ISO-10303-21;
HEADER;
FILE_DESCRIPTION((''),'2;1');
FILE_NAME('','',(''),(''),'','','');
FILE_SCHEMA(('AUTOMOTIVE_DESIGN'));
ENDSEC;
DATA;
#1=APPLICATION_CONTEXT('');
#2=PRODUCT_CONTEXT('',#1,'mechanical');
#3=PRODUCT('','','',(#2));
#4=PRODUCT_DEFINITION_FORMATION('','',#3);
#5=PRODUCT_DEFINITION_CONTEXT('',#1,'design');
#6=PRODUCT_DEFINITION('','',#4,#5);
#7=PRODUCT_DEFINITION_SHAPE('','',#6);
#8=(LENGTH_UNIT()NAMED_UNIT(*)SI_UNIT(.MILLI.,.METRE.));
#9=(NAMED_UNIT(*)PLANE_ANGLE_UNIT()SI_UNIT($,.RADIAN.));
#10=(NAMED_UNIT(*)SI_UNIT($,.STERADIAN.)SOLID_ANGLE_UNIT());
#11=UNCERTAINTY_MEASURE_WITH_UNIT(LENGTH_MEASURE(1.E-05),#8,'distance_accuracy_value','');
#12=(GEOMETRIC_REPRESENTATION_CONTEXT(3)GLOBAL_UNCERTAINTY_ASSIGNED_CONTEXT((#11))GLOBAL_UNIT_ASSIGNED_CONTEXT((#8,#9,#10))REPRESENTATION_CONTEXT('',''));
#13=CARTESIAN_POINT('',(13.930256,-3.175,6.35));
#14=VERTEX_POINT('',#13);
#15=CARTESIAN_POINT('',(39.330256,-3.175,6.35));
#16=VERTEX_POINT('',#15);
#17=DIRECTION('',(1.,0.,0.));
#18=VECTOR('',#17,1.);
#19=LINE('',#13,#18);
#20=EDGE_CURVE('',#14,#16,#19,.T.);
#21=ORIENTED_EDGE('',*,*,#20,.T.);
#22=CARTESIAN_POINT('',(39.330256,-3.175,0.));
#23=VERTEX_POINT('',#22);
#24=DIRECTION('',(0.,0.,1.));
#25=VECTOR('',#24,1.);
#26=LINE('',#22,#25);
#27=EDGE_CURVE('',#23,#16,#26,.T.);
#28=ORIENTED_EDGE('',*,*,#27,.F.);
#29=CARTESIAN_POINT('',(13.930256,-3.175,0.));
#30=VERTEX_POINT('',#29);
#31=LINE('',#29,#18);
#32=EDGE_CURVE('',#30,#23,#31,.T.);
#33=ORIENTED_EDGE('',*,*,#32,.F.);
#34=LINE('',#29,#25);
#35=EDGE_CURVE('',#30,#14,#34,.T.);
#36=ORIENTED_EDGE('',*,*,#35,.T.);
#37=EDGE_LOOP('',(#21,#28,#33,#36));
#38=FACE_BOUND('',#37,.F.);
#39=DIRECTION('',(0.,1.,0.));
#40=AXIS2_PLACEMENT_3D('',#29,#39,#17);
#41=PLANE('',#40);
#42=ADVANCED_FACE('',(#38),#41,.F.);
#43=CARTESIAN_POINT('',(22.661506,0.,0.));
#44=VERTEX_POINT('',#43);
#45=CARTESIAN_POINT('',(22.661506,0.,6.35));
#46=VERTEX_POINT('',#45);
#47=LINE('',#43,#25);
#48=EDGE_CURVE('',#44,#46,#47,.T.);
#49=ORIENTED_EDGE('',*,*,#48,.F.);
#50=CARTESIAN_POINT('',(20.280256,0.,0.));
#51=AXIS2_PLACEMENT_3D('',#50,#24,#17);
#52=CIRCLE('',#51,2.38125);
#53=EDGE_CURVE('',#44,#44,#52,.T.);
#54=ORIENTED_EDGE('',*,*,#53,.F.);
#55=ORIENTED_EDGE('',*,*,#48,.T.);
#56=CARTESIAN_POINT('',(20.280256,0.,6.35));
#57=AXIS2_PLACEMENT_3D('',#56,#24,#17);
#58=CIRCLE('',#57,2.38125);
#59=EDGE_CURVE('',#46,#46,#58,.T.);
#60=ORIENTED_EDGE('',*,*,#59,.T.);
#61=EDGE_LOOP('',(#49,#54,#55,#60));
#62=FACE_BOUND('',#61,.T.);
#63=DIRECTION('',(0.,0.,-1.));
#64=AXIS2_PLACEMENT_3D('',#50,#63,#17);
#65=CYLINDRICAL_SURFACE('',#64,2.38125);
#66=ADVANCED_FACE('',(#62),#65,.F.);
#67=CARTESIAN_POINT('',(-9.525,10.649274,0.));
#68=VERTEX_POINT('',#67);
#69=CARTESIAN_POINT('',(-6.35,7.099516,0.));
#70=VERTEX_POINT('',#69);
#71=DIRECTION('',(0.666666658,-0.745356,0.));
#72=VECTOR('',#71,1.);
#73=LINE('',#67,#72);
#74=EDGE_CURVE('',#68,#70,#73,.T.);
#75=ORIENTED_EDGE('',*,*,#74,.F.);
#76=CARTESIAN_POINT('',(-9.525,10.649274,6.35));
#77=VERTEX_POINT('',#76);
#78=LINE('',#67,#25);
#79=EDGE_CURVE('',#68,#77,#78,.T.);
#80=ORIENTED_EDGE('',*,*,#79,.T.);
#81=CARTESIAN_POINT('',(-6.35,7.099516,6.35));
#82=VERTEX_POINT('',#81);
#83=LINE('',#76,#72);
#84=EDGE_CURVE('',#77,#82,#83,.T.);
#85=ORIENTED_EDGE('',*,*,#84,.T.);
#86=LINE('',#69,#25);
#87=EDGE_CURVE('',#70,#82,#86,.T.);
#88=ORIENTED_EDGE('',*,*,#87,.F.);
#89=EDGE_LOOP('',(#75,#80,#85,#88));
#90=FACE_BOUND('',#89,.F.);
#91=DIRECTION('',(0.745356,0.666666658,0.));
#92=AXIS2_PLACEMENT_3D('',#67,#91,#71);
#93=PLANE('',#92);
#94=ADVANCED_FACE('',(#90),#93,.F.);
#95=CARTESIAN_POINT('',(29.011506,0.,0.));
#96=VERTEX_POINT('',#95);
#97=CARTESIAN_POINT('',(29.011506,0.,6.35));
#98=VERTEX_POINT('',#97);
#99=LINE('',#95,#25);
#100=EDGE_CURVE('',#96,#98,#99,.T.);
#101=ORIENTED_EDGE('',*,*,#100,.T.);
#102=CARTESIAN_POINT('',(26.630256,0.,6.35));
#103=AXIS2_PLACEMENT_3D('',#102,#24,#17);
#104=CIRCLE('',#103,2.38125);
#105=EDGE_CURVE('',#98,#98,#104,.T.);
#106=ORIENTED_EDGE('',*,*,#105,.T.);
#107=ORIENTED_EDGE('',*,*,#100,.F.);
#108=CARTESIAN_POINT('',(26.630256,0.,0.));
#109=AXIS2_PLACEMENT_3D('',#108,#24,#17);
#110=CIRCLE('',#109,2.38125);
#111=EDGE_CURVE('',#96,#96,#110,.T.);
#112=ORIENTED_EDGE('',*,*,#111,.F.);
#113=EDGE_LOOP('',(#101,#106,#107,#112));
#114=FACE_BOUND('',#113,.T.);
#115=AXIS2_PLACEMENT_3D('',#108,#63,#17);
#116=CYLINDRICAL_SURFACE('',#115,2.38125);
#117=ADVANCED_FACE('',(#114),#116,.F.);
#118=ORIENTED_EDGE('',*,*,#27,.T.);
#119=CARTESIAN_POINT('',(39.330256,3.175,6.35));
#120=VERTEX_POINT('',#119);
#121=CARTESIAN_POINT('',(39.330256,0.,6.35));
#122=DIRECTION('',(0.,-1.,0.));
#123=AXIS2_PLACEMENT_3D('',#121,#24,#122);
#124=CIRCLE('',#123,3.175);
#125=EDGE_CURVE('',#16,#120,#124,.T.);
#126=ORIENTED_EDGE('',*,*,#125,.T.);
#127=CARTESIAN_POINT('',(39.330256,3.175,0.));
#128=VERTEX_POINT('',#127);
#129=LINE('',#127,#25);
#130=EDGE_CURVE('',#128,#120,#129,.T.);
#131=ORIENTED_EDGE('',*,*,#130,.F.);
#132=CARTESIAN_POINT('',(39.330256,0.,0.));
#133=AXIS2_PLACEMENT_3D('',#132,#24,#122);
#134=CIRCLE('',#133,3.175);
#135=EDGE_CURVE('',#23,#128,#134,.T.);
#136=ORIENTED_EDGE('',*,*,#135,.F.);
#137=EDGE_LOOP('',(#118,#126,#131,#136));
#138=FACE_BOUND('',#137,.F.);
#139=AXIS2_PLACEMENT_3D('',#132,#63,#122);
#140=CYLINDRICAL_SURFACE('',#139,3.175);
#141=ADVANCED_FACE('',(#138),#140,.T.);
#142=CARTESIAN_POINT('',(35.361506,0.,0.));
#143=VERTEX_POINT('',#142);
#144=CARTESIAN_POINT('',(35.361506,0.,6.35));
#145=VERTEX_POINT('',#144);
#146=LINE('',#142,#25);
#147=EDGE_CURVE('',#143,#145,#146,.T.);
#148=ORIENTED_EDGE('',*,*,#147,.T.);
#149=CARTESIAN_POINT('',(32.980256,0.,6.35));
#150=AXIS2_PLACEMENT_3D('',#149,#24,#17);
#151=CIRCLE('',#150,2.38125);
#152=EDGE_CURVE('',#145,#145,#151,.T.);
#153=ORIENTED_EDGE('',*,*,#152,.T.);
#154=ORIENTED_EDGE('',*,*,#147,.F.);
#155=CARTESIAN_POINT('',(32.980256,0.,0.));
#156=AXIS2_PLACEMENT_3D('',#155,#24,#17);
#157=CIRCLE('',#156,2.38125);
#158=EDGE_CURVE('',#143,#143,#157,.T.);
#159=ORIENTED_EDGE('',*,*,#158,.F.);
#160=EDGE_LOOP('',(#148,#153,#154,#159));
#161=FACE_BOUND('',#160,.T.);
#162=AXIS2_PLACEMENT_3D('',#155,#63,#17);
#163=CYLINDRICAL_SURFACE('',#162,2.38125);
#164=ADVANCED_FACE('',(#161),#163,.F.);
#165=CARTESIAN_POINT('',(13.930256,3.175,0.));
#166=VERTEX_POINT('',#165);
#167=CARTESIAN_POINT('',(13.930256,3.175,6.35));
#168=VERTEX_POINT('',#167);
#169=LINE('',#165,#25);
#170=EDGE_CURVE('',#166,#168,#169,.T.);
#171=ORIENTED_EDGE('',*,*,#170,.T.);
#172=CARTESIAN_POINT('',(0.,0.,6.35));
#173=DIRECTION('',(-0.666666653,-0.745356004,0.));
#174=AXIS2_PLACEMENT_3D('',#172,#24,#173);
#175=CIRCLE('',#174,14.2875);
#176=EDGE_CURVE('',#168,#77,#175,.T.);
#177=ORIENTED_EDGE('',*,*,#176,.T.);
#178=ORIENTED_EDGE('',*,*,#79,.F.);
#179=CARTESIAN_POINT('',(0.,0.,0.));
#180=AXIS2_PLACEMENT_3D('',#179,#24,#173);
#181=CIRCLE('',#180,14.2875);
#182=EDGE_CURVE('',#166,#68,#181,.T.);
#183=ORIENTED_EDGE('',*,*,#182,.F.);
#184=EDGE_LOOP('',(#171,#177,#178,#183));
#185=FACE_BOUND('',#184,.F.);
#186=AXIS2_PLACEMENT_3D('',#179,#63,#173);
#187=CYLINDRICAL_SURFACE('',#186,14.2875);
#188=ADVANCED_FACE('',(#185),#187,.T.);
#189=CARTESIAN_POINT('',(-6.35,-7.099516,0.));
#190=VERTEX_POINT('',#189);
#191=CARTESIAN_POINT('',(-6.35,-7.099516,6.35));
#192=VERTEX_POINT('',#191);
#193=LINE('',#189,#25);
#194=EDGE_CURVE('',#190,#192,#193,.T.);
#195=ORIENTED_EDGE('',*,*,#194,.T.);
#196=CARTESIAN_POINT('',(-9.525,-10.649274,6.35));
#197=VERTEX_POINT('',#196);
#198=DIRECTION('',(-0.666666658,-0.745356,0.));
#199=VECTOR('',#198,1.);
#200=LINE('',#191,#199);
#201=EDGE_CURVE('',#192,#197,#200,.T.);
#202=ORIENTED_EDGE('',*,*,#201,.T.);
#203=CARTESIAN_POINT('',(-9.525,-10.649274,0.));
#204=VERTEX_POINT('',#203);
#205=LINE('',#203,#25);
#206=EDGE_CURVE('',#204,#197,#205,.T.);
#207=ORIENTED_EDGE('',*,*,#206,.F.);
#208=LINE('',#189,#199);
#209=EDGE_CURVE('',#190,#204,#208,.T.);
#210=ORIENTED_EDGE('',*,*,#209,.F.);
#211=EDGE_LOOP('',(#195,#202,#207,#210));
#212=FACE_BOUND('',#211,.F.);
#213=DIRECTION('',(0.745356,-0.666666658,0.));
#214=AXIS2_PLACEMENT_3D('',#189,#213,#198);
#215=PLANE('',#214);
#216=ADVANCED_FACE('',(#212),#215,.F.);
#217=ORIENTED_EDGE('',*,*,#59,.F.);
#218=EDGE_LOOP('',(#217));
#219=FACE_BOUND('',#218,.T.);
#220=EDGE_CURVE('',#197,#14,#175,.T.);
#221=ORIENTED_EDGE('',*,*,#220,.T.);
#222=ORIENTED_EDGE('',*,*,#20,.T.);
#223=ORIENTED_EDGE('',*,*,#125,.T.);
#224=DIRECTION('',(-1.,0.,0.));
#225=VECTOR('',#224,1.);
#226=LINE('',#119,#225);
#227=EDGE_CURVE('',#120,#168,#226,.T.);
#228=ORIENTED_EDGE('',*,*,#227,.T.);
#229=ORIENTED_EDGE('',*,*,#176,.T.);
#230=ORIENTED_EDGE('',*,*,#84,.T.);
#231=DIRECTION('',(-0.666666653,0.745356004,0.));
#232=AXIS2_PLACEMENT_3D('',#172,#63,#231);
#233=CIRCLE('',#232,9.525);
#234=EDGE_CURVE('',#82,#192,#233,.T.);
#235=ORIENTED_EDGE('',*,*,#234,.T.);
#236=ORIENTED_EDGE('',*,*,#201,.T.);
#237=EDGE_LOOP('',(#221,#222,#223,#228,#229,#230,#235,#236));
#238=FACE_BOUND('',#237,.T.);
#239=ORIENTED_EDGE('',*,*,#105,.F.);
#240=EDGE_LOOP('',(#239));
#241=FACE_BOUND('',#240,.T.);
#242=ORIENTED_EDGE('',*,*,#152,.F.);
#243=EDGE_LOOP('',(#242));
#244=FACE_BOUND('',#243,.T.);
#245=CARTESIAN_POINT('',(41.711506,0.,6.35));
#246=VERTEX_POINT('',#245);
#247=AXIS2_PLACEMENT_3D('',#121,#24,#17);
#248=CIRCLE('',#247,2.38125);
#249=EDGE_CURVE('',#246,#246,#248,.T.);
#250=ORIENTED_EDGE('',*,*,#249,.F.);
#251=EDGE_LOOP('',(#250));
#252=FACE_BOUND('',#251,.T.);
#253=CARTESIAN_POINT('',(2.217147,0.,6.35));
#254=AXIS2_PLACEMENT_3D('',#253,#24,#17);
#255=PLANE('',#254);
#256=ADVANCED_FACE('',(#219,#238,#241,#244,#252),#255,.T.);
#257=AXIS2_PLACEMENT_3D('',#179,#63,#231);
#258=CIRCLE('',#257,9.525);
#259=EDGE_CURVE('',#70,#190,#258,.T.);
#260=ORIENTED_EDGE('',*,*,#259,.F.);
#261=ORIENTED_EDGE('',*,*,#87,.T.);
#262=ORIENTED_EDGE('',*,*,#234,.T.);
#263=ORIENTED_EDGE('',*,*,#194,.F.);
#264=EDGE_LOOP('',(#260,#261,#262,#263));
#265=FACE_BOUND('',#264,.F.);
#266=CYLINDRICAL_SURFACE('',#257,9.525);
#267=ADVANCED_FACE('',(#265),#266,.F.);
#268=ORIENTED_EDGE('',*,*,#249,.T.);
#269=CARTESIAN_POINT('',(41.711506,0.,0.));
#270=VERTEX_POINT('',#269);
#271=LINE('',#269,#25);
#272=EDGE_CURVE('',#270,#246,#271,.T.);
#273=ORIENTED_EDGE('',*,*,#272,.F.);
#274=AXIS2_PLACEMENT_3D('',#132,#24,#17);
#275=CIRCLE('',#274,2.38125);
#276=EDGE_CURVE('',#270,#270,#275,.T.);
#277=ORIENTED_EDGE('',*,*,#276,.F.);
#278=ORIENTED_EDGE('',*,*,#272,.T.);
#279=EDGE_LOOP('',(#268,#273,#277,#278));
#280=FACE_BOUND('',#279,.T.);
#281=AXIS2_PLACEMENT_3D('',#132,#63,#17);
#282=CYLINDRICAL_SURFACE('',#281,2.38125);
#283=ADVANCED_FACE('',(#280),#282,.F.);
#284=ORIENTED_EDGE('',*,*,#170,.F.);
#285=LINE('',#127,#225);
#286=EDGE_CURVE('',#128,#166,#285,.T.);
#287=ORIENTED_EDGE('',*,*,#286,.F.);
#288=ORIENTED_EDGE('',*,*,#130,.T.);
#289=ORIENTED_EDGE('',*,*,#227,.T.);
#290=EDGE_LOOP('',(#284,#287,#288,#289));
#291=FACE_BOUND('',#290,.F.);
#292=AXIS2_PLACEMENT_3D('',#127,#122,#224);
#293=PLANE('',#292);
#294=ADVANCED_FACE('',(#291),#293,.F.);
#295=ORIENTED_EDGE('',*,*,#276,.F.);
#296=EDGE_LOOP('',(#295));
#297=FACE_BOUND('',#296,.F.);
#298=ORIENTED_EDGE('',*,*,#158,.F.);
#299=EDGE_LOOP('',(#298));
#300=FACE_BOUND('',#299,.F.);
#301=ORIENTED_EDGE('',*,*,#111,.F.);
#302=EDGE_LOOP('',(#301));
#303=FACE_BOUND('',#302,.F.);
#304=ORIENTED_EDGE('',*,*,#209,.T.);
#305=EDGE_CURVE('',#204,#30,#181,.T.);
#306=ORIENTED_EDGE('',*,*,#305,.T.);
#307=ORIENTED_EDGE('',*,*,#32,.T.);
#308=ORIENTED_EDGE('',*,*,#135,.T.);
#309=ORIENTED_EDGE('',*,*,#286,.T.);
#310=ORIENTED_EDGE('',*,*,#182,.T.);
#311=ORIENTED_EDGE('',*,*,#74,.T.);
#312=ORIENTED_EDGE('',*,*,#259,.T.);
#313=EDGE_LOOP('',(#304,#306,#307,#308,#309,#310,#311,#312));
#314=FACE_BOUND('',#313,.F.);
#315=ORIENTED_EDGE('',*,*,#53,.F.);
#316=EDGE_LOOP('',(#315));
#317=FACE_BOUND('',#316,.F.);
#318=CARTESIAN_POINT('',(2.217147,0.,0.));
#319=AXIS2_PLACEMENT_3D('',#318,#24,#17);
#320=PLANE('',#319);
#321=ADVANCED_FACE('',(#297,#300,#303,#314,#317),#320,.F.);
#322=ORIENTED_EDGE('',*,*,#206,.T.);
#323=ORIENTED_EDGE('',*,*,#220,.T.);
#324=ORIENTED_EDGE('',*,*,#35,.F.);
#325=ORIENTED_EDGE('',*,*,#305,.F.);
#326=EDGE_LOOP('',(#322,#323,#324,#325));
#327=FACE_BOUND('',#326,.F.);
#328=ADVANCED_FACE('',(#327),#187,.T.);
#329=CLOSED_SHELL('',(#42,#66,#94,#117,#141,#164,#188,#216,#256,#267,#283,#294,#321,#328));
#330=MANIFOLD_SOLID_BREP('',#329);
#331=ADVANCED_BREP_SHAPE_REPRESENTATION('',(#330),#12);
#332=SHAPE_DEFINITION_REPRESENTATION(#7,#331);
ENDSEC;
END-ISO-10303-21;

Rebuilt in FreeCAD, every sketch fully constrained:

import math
import FreeCAD as App
import Part
import Sketcher

V = App.Vector
Q = App.Units.Quantity

doc = App.newDocument("Part")
body = doc.addObject("PartDesign::Body", "Body")

# Sketch on XY plane
sketch1 = body.newObject("Sketcher::SketchObject", "Sketch")
sketch1.AttachmentSupport = (doc.getObject("XY_Plane"), [""])
sketch1.MapMode = "FlatFace"
sketch1.addGeometry([
    Part.LineSegment(V(-9.5, 10.6, 0), V(-6.3, 7.1, 0)),
    Part.ArcOfCircle(Part.Circle(V(0, 0, 0), V(0, 0, 1), 9.5), math.radians(-132), math.radians(132)),
    Part.LineSegment(V(-6.3, -7.1, 0), V(-9.5, -10.6, 0)),
    Part.ArcOfCircle(Part.Circle(V(0, 0, 0), V(0, 0, 1), 14.3), math.radians(-132), math.radians(132)),
], False)
sketch1.addConstraint([
    Sketcher.Constraint("Coincident", 0, 2, 1, 2),
    Sketcher.Constraint("Coincident", 1, 1, 2, 1),
    Sketcher.Constraint("Coincident", 2, 2, 3, 1),
    Sketcher.Constraint("Coincident", 3, 2, 0, 1),
    Sketcher.Constraint("Coincident", 1, 3, -1, 1),
    Sketcher.Constraint("Coincident", 3, 3, -1, 1),
    Sketcher.Constraint("Vertical", 0, 2, 1, 1),
    Sketcher.Constraint("Vertical", 2, 2, 3, 2),
    Sketcher.Constraint("Radius", 1, Q("0.375 in")),
    Sketcher.Constraint("Radius", 3, Q("0.5625 in")),
    Sketcher.Constraint("DistanceX", 0, 2, -1, 1, Q("0.25 in")),
    Sketcher.Constraint("DistanceX", 2, 2, -1, 1, Q("0.375 in")),
])
pad1 = body.newObject("PartDesign::Pad", "Pad")
pad1.Profile = sketch1
pad1.Length = Q("0.25 in")

# Sketch on XY plane
sketch2 = body.newObject("Sketcher::SketchObject", "Sketch001")
sketch2.AttachmentSupport = (doc.getObject("XY_Plane"), [""])
sketch2.MapMode = "FlatFace"
sketch2.addGeometry([
    Part.LineSegment(V(39.3, 3.2, 0), V(13.9, 3.2, 0)),  # 0
    Part.ArcOfCircle(Part.Circle(V(0, 0, 0), V(0, 0, 1), 14.3), math.radians(-13), math.radians(13)),  # 1
    Part.LineSegment(V(13.9, -3.2, 0), V(39.3, -3.2, 0)),  # 2
    Part.ArcOfCircle(Part.Circle(V(39.3, 0, 0), V(0, 0, 1), 3.2), math.radians(-90), math.radians(90)),  # 3
    Part.Circle(V(20.3, 0, 0), V(0, 0, 1), 2.4),  # 4
    Part.Circle(V(26.6, 0, 0), V(0, 0, 1), 2.4),  # 5
    Part.Circle(V(33, 0, 0), V(0, 0, 1), 2.4),  # 6
    Part.Circle(V(39.3, 0, 0), V(0, 0, 1), 2.4),  # 7
], False)
sketch2.addConstraint([
    Sketcher.Constraint("Coincident", 0, 2, 1, 2),
    Sketcher.Constraint("Coincident", 1, 1, 2, 1),
    Sketcher.Constraint("Tangent", 2, 2, 3, 1),
    Sketcher.Constraint("Tangent", 3, 2, 0, 1),
    Sketcher.Constraint("Horizontal", 0),
    Sketcher.Constraint("Horizontal", 2),
    Sketcher.Constraint("Coincident", 1, 3, -1, 1),
    Sketcher.Constraint("Coincident", 7, 3, 3, 3),
    Sketcher.Constraint("Equal", 4, 5),
    Sketcher.Constraint("Equal", 5, 6),
    Sketcher.Constraint("Equal", 6, 7),
    Sketcher.Constraint("PointOnObject", 3, 3, -1),
    Sketcher.Constraint("PointOnObject", 4, 3, -1),
    Sketcher.Constraint("PointOnObject", 5, 3, -1),
    Sketcher.Constraint("PointOnObject", 6, 3, -1),
    Sketcher.Constraint("DistanceX", 0, 2, 0, 1, Q("1 in")),
    Sketcher.Constraint("Diameter", 4, Q("0.1875 in")),
    Sketcher.Constraint("Radius", 1, Q("0.5625001 in")),
    Sketcher.Constraint("Radius", 3, Q("0.125 in")),
    Sketcher.Constraint("DistanceX", 5, 3, 3, 3, Q("0.5 in")),
    Sketcher.Constraint("DistanceX", 4, 3, 6, 3, Q("0.5 in")),
    Sketcher.Constraint("DistanceX", 4, 3, 3, 3, Q("0.75 in")),
])
pad2 = body.newObject("PartDesign::Pad", "Pad001")
pad2.Profile = sketch2
pad2.Length = Q("0.25 in")

doc.recompute()
